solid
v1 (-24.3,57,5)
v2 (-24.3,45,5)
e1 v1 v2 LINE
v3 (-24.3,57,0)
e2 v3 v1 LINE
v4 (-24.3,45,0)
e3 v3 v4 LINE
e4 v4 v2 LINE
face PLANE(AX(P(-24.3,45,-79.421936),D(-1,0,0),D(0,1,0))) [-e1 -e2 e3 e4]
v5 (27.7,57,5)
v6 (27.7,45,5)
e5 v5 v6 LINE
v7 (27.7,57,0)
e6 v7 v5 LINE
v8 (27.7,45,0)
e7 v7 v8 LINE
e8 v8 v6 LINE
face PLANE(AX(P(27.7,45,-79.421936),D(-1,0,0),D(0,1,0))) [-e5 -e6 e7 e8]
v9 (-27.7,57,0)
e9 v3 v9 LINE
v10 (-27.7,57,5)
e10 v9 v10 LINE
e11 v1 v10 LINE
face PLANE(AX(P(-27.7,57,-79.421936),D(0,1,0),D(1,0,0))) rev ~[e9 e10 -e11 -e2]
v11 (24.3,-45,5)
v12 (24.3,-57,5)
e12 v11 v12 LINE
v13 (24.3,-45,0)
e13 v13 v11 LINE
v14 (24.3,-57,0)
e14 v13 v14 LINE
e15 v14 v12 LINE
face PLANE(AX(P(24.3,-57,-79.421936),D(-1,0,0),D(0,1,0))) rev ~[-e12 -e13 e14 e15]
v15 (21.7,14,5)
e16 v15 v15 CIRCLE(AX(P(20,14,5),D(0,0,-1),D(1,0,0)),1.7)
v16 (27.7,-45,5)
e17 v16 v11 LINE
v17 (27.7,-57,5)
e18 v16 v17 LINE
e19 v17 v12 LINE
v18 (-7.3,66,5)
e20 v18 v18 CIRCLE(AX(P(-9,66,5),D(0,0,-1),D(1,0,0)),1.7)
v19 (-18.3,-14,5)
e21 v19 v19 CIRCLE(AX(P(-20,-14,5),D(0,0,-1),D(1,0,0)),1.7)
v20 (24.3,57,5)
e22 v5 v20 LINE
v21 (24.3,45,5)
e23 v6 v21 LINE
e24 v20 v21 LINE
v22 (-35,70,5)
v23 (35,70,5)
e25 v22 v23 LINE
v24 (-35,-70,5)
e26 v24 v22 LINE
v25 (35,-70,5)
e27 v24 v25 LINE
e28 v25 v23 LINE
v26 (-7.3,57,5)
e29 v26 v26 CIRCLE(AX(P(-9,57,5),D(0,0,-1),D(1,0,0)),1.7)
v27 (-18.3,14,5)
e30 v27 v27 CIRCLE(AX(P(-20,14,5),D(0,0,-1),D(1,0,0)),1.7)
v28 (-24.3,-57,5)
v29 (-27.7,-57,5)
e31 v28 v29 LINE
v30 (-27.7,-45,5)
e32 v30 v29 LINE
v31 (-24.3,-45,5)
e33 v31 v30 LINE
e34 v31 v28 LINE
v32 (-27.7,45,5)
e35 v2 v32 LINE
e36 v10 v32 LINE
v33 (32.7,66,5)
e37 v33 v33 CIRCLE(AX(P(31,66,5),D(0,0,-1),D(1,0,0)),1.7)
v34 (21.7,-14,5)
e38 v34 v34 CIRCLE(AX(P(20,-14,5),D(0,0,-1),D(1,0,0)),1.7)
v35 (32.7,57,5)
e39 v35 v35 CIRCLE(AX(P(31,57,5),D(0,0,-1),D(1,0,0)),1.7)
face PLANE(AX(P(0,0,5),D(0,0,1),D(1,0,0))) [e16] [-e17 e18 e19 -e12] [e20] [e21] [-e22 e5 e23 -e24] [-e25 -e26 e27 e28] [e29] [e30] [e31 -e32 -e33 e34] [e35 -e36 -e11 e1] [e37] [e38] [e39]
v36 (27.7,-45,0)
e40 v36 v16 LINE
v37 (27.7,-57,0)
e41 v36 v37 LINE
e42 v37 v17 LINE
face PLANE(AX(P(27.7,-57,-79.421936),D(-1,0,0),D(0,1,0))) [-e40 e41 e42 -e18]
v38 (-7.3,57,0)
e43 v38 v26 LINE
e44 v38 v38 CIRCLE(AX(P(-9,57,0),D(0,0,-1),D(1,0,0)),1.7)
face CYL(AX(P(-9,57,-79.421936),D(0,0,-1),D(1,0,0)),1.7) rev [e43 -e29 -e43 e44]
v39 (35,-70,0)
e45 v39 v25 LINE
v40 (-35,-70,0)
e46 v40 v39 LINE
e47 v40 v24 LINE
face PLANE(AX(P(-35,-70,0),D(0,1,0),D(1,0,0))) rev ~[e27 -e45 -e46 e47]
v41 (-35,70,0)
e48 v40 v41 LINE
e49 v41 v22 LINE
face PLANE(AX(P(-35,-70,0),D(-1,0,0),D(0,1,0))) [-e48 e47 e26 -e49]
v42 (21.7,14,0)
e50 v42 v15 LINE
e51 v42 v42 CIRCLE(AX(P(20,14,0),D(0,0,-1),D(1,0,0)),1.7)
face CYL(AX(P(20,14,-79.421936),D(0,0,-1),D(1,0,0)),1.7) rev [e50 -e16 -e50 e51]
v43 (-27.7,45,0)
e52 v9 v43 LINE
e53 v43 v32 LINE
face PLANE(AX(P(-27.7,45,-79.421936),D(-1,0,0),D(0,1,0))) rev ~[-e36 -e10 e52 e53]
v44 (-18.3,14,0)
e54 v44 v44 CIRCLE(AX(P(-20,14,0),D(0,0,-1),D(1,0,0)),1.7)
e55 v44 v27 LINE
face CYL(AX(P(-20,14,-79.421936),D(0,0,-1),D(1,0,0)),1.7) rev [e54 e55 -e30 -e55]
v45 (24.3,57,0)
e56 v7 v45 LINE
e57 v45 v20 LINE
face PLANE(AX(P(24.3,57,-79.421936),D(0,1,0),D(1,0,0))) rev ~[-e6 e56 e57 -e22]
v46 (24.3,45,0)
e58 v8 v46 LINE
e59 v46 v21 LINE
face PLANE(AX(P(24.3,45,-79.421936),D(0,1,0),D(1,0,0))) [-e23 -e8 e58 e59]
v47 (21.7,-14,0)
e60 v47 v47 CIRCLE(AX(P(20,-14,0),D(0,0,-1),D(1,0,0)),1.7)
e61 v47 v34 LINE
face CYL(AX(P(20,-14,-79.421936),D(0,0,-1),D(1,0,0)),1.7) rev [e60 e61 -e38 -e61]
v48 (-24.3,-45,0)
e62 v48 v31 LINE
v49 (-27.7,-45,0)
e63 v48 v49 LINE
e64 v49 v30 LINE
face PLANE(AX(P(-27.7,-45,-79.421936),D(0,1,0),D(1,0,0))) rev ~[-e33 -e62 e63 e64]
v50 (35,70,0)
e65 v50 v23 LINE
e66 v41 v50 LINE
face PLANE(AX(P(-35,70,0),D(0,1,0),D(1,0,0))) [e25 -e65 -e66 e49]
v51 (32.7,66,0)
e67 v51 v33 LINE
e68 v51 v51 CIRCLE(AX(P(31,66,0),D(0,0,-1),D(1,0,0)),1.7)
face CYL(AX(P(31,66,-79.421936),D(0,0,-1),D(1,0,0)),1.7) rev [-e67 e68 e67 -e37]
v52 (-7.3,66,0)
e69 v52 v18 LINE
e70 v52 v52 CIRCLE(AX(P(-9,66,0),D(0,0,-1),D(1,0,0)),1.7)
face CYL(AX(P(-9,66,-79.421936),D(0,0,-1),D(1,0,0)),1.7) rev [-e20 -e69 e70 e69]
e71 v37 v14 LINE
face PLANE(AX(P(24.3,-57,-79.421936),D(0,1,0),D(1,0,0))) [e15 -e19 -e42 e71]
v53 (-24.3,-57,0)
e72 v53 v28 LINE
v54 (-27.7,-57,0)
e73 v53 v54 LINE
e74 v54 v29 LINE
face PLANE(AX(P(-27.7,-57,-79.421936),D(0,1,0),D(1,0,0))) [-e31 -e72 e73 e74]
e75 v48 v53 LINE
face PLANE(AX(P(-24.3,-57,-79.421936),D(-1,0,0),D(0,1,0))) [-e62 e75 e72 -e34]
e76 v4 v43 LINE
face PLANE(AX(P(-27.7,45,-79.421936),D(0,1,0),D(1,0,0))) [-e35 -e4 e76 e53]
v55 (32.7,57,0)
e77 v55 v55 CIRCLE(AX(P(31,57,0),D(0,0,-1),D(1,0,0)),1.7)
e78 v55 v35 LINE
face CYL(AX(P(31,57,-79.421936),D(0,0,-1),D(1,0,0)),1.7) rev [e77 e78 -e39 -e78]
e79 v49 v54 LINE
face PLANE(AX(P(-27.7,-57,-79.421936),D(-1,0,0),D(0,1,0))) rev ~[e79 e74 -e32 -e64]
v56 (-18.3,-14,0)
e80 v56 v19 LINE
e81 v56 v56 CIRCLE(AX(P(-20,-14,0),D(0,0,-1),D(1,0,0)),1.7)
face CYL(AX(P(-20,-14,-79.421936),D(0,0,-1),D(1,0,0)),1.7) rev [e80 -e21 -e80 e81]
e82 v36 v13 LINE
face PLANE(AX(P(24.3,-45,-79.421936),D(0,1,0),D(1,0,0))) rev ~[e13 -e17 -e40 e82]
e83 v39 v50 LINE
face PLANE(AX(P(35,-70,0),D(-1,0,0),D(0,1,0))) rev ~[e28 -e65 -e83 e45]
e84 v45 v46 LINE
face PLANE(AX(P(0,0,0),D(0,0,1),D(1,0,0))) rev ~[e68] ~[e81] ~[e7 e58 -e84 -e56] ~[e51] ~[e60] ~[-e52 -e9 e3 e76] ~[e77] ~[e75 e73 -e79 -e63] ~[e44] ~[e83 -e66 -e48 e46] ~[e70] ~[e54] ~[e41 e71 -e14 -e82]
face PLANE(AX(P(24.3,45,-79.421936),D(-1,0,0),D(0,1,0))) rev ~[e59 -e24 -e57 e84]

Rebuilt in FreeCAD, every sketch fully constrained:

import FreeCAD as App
import Part
import Sketcher

V = App.Vector
Q = App.Units.Quantity

doc = App.newDocument("Part")
body = doc.addObject("PartDesign::Body", "Body")

sketch1 = doc.addObject("Sketcher::SketchObject", "Sketch")
body.addObject(sketch1)
sketch1.AttachmentSupport = (doc.XY_Plane, [""])
sketch1.MapMode = "FlatFace"
sketch1.addGeometry([
    Part.LineSegment(V(-35, 70, 0), V(-35, -70, 0)),
    Part.LineSegment(V(-35, -70, 0), V(35, -70, 0)),
    Part.LineSegment(V(35, -70, 0), V(35, 70, 0)),
    Part.LineSegment(V(35, 70, 0), V(-35, 70, 0)),
], False)
sketch1.addConstraint([
    Sketcher.Constraint("Coincident", 0, 2, 1, 1),
    Sketcher.Constraint("Coincident", 1, 2, 2, 1),
    Sketcher.Constraint("Coincident", 2, 2, 3, 1),
    Sketcher.Constraint("Coincident", 3, 2, 0, 1),
    Sketcher.Constraint("Vertical", 0),
    Sketcher.Constraint("Horizontal", 1),
    Sketcher.Constraint("Vertical", 2),
    Sketcher.Constraint("Horizontal", 3),
    Sketcher.Constraint("Symmetric", 0, 2, 2, 2, -1, 1),
    Sketcher.Constraint("DistanceX", 1, 1, 1, 2, Q("70 mm")),
    Sketcher.Constraint("DistanceY", 0, 2, 0, 1, Q("140 mm")),
])
pad1 = doc.addObject("PartDesign::Pad", "Pad")
body.addObject(pad1)
pad1.Profile = sketch1
pad1.Length = 5

sketch2 = doc.addObject("Sketcher::SketchObject", "Sketch001")
body.addObject(sketch2)
sketch2.AttachmentSupport = (doc.XY_Plane, [""])
sketch2.MapMode = "FlatFace"
sketch2.addGeometry([
    Part.LineSegment(V(-27.7, -45, 0), V(-27.7, -57, 0)),
    Part.LineSegment(V(-27.7, -57, 0), V(-24.3, -57, 0)),
    Part.LineSegment(V(-24.3, -57, 0), V(-24.3, -45, 0)),
    Part.LineSegment(V(-24.3, -45, 0), V(-27.7, -45, 0)),
    Part.LineSegment(V(-27.7, 57, 0), V(-27.7, 45, 0)),
    Part.LineSegment(V(-27.7, 45, 0), V(-24.3, 45, 0)),
    Part.LineSegment(V(-24.3, 45, 0), V(-24.3, 57, 0)),
    Part.LineSegment(V(-24.3, 57, 0), V(-27.7, 57, 0)),
    Part.LineSegment(V(24.3, -45, 0), V(24.3, -57, 0)),
    Part.LineSegment(V(24.3, -57, 0), V(27.7, -57, 0)),
    Part.LineSegment(V(27.7, -57, 0), V(27.7, -45, 0)),
    Part.LineSegment(V(27.7, -45, 0), V(24.3, -45, 0)),
    Part.LineSegment(V(24.3, 57, 0), V(24.3, 45, 0)),
    Part.LineSegment(V(24.3, 45, 0), V(27.7, 45, 0)),
    Part.LineSegment(V(27.7, 45, 0), V(27.7, 57, 0)),
    Part.LineSegment(V(27.7, 57, 0), V(24.3, 57, 0)),
], False)
sketch2.addConstraint([
    Sketcher.Constraint("Coincident", 0, 2, 1, 1),
    Sketcher.Constraint("Coincident", 1, 2, 2, 1),
    Sketcher.Constraint("Coincident", 2, 2, 3, 1),
    Sketcher.Constraint("Coincident", 3, 2, 0, 1),
    Sketcher.Constraint("Coincident", 4, 2, 5, 1),
    Sketcher.Constraint("Coincident", 5, 2, 6, 1),
    Sketcher.Constraint("Coincident", 6, 2, 7, 1),
    Sketcher.Constraint("Coincident", 7, 2, 4, 1),
    Sketcher.Constraint("Coincident", 8, 2, 9, 1),
    Sketcher.Constraint("Coincident", 9, 2, 10, 1),
    Sketcher.Constraint("Coincident", 10, 2, 11, 1),
    Sketcher.Constraint("Coincident", 11, 2, 8, 1),
    Sketcher.Constraint("Coincident", 12, 2, 13, 1),
    Sketcher.Constraint("Coincident", 13, 2, 14, 1),
    Sketcher.Constraint("Coincident", 14, 2, 15, 1),
    Sketcher.Constraint("Coincident", 15, 2, 12, 1),
    Sketcher.Constraint("Vertical", 0),
    Sketcher.Constraint("Horizontal", 1),
    Sketcher.Constraint("Vertical", 2),
    Sketcher.Constraint("Horizontal", 3),
    Sketcher.Constraint("Vertical", 4),
    Sketcher.Constraint("Horizontal", 5),
    Sketcher.Constraint("Vertical", 6),
    Sketcher.Constraint("Horizontal", 7),
    Sketcher.Constraint("Vertical", 8),
    Sketcher.Constraint("Horizontal", 9),
    Sketcher.Constraint("Vertical", 10),
    Sketcher.Constraint("Horizontal", 11),
    Sketcher.Constraint("Vertical", 12),
    Sketcher.Constraint("Horizontal", 13),
    Sketcher.Constraint("Vertical", 14),
    Sketcher.Constraint("Horizontal", 15),
    Sketcher.Constraint("Symmetric", 6, 2, 8, 2, -1, 1),
    Sketcher.Constraint("Symmetric", 4, 2, 10, 2, -1, 1),
    Sketcher.Constraint("Symmetric", 2, 2, 12, 2, -1, 1),
    Sketcher.Constraint("Symmetric", 0, 2, 14, 2, -1, 1),
    Sketcher.Constraint("Symmetric", 1, 2, 8, 2, -2),
    Sketcher.Constraint("Symmetric", 3, 2, 10, 2, -2),
    Sketcher.Constraint("DistanceY", 0, 2, 0, 1, Q("12 mm")),
    Sketcher.Constraint("DistanceX", 1, 1, 1, 2, Q("3.4 mm")),
    Sketcher.Constraint("DistanceY", 0, 2, -1, 1, Q("57 mm")),
    Sketcher.Constraint("DistanceX", 0, 2, 8, 2, Q("52 mm")),
])
pocket1 = doc.addObject("PartDesign::Pocket", "Pocket")
body.addObject(pocket1)
pocket1.Profile = sketch2
pocket1.Type = "ThroughAll"
pocket1.Midplane = True

sketch3 = doc.addObject("Sketcher::SketchObject", "Sketch002")
body.addObject(sketch3)
sketch3.AttachmentSupport = (doc.XY_Plane, [""])
sketch3.MapMode = "FlatFace"
sketch3.addGeometry([
    Part.Circle(V(-20, -14, 0), V(0, 0, 1), 1.7),
    Part.Circle(V(-20, 14, 0), V(0, 0, 1), 1.7),
    Part.Circle(V(20, -14, 0), V(0, 0, 1), 1.7),
    Part.Circle(V(20, 14, 0), V(0, 0, 1), 1.7),
    Part.Circle(V(-9, 57, 0), V(0, 0, 1), 1.7),
    Part.Circle(V(-9, 66, 0), V(0, 0, 1), 1.7),
    Part.Circle(V(31, 57, 0), V(0, 0, 1), 1.7),
    Part.Circle(V(31, 66, 0), V(0, 0, 1), 1.7),
], False)
sketch3.addConstraint([
    Sketcher.Constraint("Equal", 0, 1),
    Sketcher.Constraint("Equal", 1, 2),
    Sketcher.Constraint("Equal", 2, 3),
    Sketcher.Constraint("Equal", 3, 4),
    Sketcher.Constraint("Equal", 4, 5),
    Sketcher.Constraint("Equal", 5, 6),
    Sketcher.Constraint("Equal", 6, 7),
    Sketcher.Constraint("Symmetric", 1, 3, 2, 3, -1, 1),
    Sketcher.Constraint("Symmetric", 0, 3, 3, 3, -1, 1),
    Sketcher.Constraint("Symmetric", 0, 3, 2, 3, -2),
    Sketcher.Constraint("Horizontal", 4, 3, 6, 3),
    Sketcher.Constraint("Horizontal", 5, 3, 7, 3),
    Sketcher.Constraint("Vertical", 4, 3, 5, 3),
    Sketcher.Constraint("Vertical", 6, 3, 7, 3),
    Sketcher.Constraint("Diameter", 0, Q("3.4 mm")),
    Sketcher.Constraint("DistanceX", 0, 3, -1, 1, Q("20 mm")),
    Sketcher.Constraint("DistanceY", 0, 3, -1, 1, Q("14 mm")),
    Sketcher.Constraint("DistanceX", 4, 3, -1, 1, Q("9 mm")),
    Sketcher.Constraint("DistanceY", -1, 1, 4, 3, Q("57 mm")),
    Sketcher.Constraint("DistanceY", -1, 1, 5, 3, Q("66 mm")),
    Sketcher.Constraint("DistanceX", -1, 1, 6, 3, Q("31 mm")),
])
pocket2 = doc.addObject("PartDesign::Pocket", "Pocket001")
body.addObject(pocket2)
pocket2.Profile = sketch3
pocket2.Type = "ThroughAll"
pocket2.Midplane = True

doc.recompute()
